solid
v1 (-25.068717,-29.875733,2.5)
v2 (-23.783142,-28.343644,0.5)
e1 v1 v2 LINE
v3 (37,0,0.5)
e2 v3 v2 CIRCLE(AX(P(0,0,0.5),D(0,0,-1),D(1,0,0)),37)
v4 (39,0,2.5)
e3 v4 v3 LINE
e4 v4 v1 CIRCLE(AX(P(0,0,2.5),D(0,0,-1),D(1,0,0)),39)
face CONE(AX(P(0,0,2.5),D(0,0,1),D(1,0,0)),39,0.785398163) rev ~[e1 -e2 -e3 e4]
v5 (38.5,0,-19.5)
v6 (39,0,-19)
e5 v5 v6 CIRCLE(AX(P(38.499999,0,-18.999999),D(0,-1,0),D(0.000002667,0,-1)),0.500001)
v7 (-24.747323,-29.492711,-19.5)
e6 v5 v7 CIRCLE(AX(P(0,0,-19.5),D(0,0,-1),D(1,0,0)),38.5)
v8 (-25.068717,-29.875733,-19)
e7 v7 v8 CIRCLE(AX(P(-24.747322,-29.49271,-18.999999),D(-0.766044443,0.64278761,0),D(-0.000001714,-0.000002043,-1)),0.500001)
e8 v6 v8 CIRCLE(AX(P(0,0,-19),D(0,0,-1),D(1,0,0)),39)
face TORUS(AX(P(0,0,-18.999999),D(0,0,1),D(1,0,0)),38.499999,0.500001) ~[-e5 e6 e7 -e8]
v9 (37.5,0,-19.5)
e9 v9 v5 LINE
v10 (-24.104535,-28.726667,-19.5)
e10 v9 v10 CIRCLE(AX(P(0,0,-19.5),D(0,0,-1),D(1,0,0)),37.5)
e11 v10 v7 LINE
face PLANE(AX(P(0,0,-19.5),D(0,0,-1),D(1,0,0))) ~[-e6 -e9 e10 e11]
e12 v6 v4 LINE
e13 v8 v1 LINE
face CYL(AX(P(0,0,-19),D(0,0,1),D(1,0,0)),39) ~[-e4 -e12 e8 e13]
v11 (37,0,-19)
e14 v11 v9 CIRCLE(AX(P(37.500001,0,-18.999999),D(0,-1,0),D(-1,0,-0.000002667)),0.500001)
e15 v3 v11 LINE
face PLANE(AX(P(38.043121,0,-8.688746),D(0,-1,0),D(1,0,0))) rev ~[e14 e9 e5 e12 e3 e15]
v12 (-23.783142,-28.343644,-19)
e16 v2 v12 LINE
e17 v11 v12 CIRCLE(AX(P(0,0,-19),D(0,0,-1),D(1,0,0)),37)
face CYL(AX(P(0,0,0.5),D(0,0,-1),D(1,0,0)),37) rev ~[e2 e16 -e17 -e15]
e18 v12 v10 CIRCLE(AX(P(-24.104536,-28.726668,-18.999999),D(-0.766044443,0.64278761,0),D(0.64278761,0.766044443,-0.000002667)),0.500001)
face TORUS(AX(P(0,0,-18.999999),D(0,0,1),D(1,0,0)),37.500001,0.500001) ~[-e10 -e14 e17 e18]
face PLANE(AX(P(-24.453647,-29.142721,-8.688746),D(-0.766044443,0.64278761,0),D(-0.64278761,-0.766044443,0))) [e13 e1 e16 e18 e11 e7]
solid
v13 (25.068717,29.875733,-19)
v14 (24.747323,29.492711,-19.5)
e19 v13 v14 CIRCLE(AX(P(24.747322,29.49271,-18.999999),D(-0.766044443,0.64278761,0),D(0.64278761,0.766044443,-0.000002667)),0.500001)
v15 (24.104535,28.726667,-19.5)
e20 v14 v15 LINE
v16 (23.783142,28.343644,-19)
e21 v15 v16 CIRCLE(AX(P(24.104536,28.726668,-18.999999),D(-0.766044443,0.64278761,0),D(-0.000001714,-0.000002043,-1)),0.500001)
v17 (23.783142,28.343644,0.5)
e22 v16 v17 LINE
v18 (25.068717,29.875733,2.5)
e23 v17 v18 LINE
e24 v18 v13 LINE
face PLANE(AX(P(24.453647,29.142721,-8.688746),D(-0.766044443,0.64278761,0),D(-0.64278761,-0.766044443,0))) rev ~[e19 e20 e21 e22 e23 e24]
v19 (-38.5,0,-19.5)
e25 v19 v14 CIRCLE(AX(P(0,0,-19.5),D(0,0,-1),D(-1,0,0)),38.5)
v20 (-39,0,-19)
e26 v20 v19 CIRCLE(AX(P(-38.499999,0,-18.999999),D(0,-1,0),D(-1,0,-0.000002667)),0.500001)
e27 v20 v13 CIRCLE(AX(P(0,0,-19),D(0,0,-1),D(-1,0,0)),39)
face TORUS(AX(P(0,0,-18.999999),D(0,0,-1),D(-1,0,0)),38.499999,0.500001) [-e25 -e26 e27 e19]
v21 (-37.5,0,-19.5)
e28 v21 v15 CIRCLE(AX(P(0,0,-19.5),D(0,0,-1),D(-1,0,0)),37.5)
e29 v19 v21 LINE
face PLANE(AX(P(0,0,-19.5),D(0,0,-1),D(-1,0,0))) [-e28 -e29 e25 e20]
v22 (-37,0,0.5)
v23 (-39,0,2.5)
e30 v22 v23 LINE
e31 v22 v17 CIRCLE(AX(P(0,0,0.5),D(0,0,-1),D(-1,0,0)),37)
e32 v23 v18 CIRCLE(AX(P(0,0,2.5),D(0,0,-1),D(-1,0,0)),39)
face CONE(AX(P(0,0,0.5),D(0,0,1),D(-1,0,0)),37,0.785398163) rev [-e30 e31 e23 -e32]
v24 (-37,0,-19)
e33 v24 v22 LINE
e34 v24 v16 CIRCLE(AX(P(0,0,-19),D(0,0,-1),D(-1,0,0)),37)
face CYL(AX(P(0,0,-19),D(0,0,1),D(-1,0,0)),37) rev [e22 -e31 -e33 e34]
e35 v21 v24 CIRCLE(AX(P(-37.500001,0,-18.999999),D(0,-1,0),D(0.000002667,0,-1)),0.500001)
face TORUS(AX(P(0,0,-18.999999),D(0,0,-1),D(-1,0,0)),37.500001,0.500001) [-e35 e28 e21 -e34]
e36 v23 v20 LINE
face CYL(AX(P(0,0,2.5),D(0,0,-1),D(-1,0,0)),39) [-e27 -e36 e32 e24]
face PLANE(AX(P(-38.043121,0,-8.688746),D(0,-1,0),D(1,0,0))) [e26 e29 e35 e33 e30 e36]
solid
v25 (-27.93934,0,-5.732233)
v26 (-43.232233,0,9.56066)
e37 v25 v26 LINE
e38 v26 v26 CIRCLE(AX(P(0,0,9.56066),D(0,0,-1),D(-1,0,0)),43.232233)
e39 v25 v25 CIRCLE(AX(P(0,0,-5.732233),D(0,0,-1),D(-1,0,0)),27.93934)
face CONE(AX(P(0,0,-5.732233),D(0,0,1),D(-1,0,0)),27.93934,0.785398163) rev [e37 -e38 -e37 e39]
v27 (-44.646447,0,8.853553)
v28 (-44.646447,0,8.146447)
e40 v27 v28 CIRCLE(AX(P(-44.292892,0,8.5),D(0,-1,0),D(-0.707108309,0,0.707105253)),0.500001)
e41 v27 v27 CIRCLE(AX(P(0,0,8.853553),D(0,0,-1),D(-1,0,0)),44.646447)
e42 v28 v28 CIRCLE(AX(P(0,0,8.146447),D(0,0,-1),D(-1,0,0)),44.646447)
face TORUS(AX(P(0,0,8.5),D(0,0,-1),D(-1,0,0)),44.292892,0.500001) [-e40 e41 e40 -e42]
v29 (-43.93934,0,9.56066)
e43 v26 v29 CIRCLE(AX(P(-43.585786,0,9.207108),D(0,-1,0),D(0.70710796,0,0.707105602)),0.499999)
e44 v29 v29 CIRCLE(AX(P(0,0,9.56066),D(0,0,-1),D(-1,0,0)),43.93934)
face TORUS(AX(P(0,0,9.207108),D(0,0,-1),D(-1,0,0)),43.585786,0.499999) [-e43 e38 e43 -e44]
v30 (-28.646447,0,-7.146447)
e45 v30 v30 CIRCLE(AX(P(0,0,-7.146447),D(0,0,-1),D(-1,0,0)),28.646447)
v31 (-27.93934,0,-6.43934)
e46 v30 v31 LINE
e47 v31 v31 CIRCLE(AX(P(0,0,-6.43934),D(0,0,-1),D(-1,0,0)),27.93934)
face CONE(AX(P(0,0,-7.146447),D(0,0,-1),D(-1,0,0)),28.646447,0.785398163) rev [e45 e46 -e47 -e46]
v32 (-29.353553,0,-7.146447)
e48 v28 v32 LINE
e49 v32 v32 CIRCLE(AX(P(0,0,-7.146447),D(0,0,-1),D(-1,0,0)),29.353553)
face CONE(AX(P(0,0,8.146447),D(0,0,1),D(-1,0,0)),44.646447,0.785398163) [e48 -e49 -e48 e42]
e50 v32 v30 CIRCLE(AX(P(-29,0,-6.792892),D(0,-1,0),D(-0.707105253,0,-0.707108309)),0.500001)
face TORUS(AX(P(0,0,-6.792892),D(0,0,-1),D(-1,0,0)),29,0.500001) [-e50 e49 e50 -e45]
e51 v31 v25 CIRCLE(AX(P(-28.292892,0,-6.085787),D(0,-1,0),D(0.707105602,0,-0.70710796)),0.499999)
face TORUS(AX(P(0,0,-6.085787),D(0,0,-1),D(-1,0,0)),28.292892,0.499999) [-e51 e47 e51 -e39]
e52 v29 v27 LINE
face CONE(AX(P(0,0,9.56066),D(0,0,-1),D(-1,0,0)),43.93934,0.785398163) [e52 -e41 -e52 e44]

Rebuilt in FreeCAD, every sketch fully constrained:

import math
import FreeCAD as App
import Part
import Sketcher

V = App.Vector

doc = App.newDocument("Part")
params = doc.addObject("Spreadsheet::Sheet", "Params")
for row, (alias, value) in enumerate([
    ("sketch1_radius", "0.500001 mm"),
    ("sketch1_width", "1 mm"),
    ("sketch1_height", "21.5 mm"),
    ("sketch1_height2", "19.5 mm"),
    ("revolution_angle", "130 deg"),
    ("sketch2_radius", "0.500001 mm"),
    ("sketch2_length", "1 mm"),
    ("revolution2_angle", "360 deg"),
], start=1):
    params.set(f"A{row}", alias)
    params.set(f"B{row}", "=" + value)
    params.setAlias(f"B{row}", alias)

body = doc.addObject("PartDesign::Body", "Body")
body.AllowCompound = True

# Sketch on XZ plane
sketch1 = doc.addObject("Sketcher::SketchObject", "Sketch")
body.addObject(sketch1)
sketch1.AttachmentSupport = (doc.XZ_Plane, [""])
sketch1.MapMode = "FlatFace"
sketch1.addGeometry([
    Part.LineSegment(V(-39, 2.5, 0), V(-39, -19, 0)),  # 0
    Part.ArcOfCircle(Part.Circle(V(-38.499999, -18.999999, 0), V(0, 0, 1), 0.500001), math.radians(-179.999847), math.radians(-90.000153)),  # 1
    Part.LineSegment(V(-38.5, -19.5, 0), V(-37.5, -19.5, 0)),  # 2
    Part.ArcOfCircle(Part.Circle(V(-37.500001, -18.999999, 0), V(0, 0, 1), 0.500001), math.radians(-89.999847), math.radians(-0.000153)),  # 3
    Part.LineSegment(V(-37, -19, 0), V(-37, 0.5, 0)),  # 4
    Part.LineSegment(V(-37, 0.5, 0), V(-39, 2.5, 0)),  # 5
    Part.LineSegment(V(39, -19, 0), V(39, 2.5, 0)),  # 6
    Part.LineSegment(V(39, 2.5, 0), V(37, 0.5, 0)),  # 7
    Part.LineSegment(V(37, 0.5, 0), V(37, -19, 0)),  # 8
    Part.ArcOfCircle(Part.Circle(V(37.500001, -18.999999, 0), V(0, 0, 1), 0.500001), math.radians(-179.999847), math.radians(-90.000153)),  # 9
    Part.LineSegment(V(37.5, -19.5, 0), V(38.5, -19.5, 0)),  # 10
    Part.ArcOfCircle(Part.Circle(V(38.499999, -18.999999, 0), V(0, 0, 1), 0.500001), math.radians(-89.999847), math.radians(-0.000153)),  # 11
], False)
sketch1.addConstraint([
    Sketcher.Constraint("Coincident", 0, 2, 1, 1),
    Sketcher.Constraint("Coincident", 1, 2, 2, 1),
    Sketcher.Constraint("Coincident", 2, 2, 3, 1),
    Sketcher.Constraint("Coincident", 3, 2, 4, 1),
    Sketcher.Constraint("Coincident", 4, 2, 5, 1),
    Sketcher.Constraint("Coincident", 5, 2, 0, 1),
    Sketcher.Constraint("Coincident", 6, 2, 7, 1),
    Sketcher.Constraint("Coincident", 7, 2, 8, 1),
    Sketcher.Constraint("Coincident", 8, 2, 9, 1),
    Sketcher.Constraint("Coincident", 9, 2, 10, 1),
    Sketcher.Constraint("Coincident", 10, 2, 11, 1),
    Sketcher.Constraint("Coincident", 11, 2, 6, 1),
    Sketcher.Constraint("Vertical", 0),
    Sketcher.Constraint("Horizontal", 2),
    Sketcher.Constraint("Vertical", 4),
    Sketcher.Constraint("Vertical", 6),
    Sketcher.Constraint("Vertical", 8),
    Sketcher.Constraint("Horizontal", 10),
    Sketcher.Constraint("Equal", 1, 3),
    Sketcher.Constraint("Equal", 3, 9),
    Sketcher.Constraint("Equal", 9, 11),
    Sketcher.Constraint("Symmetric", 3, 3, 9, 3, -2),
    Sketcher.Constraint("Symmetric", 5, 2, 6, 2, -2),
    Sketcher.Constraint("Perpendicular", 5, 7),
    Sketcher.Constraint("Horizontal", 11, 3, 0, 2),
    Sketcher.Constraint("Horizontal", 0, 2, 3, 2),
    Sketcher.Constraint("Horizontal", 4, 2, 7, 2),
    Sketcher.Constraint("Horizontal", 3, 2, 8, 2),
    Sketcher.Constraint("Horizontal", 8, 2, 11, 2),
    Sketcher.Constraint("Vertical", 3, 3, 2, 2),
    Sketcher.Constraint("Vertical", 11, 3, 10, 2),
    Sketcher.Constraint("Equal", 2, 10),
    Sketcher.Constraint("Radius", 1, 0.500001),
    Sketcher.Constraint("DistanceX", 2, 1, 2, 2, 1.0),
    Sketcher.Constraint("DistanceY", 0, 2, 0, 1, 21.5),
    Sketcher.Constraint("DistanceY", 4, 1, 4, 2, 19.5),
    Sketcher.Constraint("DistanceY", 1, 3, -1, 1, 18.999999),
    Sketcher.Constraint("DistanceX", 0, 2, -1, 1, 39.0),
])
sketch1.setExpression("Constraints[32]", "Params.sketch1_radius")
sketch1.setExpression("Constraints[33]", "Params.sketch1_width")
sketch1.setExpression("Constraints[34]", "Params.sketch1_height")
sketch1.setExpression("Constraints[35]", "Params.sketch1_height2")
revolution = doc.addObject("PartDesign::Revolution", "Revolution")
body.addObject(revolution)
revolution.Profile = sketch1
revolution.ReferenceAxis = (sketch1, ["V_Axis"])
revolution.setExpression("Angle", "Params.revolution_angle")
revolution.Reversed = True
body2 = doc.addObject("PartDesign::Body", "Body001")

# Sketch on XZ plane
sketch2 = doc.addObject("Sketcher::SketchObject", "Sketch001")
body2.addObject(sketch2)
sketch2.AttachmentSupport = (doc.getObject("XZ_Plane001"), [""])
sketch2.MapMode = "FlatFace"
sketch2.addGeometry([
    Part.ArcOfCircle(Part.Circle(V(-29, -6.792892, 0), V(0, 0, 1), 0.500001), math.radians(-134.999876), math.radians(-45.000124)),  # 0
    Part.LineSegment(V(-28.646447, -7.146447, 0), V(-27.93934, -6.43934, 0)),  # 1
    Part.ArcOfCircle(Part.Circle(V(-28.292892, -6.085787, 0), V(0, 0, 1), 0.499999), math.radians(-45.000096), math.radians(45.000096)),  # 2
    Part.LineSegment(V(-27.93934, -5.732233, 0), V(-43.232233, 9.56066, 0)),  # 3
    Part.ArcOfCircle(Part.Circle(V(-43.585786, 9.207108, 0), V(0, 0, 1), 0.499999), math.radians(44.999904), math.radians(135.000096)),  # 4
    Part.LineSegment(V(-43.93934, 9.56066, 0), V(-44.646447, 8.853553, 0)),  # 5
    Part.ArcOfCircle(Part.Circle(V(-44.292892, 8.5, 0), V(0, 0, 1), 0.500001), math.radians(135.000124), math.radians(224.999876)),  # 6
    Part.LineSegment(V(-44.646447, 8.146447, 0), V(-29.353553, -7.146447, 0)),  # 7
], False)
sketch2.addConstraint([
    Sketcher.Constraint("Coincident", 0, 2, 1, 1),
    Sketcher.Constraint("Tangent", 1, 2, 2, 1),
    Sketcher.Constraint("Tangent", 2, 2, 3, 1),
    Sketcher.Constraint("Tangent", 3, 2, 4, 1),
    Sketcher.Constraint("Tangent", 4, 2, 5, 1),
    Sketcher.Constraint("Coincident", 5, 2, 6, 1),
    Sketcher.Constraint("Coincident", 6, 2, 7, 1),
    Sketcher.Constraint("Coincident", 7, 2, 0, 1),
    Sketcher.Constraint("Equal", 0, 2),
    Sketcher.Constraint("Equal", 2, 4),
    Sketcher.Constraint("Equal", 4, 6),
    Sketcher.Constraint("Perpendicular", 1, 3),
    Sketcher.Constraint("Perpendicular", 3, 5),
    Sketcher.Constraint("Perpendicular", 5, 7),
    Sketcher.Constraint("Horizontal", 3, 2, 4, 2),
    Sketcher.Constraint("Horizontal", 0, 2, 7, 2),
    Sketcher.Constraint("Vertical", 5, 2, 6, 2),
    Sketcher.Constraint("Equal", 1, 5),
    Sketcher.Constraint("Equal", 3, 7),
    Sketcher.Constraint("Radius", 0, 0.500001),
    Sketcher.Constraint("Distance", 1, 1.0),
    Sketcher.Constraint("DistanceX", 0, 3, -1, 1, 29.0),
    Sketcher.Constraint("DistanceY", 0, 3, 4, 3, 16.0),
    Sketcher.Constraint("DistanceY", -1, 1, 6, 3, 8.5),
])
sketch2.setExpression("Constraints[19]", "Params.sketch2_radius")
sketch2.setExpression("Constraints[20]", "Params.sketch2_length")
revolution2 = doc.addObject("PartDesign::Revolution", "Revolution001")
body2.addObject(revolution2)
revolution2.Profile = sketch2
revolution2.ReferenceAxis = (sketch2, ["V_Axis"])
revolution2.setExpression("Angle", "Params.revolution2_angle")

doc.recompute()
